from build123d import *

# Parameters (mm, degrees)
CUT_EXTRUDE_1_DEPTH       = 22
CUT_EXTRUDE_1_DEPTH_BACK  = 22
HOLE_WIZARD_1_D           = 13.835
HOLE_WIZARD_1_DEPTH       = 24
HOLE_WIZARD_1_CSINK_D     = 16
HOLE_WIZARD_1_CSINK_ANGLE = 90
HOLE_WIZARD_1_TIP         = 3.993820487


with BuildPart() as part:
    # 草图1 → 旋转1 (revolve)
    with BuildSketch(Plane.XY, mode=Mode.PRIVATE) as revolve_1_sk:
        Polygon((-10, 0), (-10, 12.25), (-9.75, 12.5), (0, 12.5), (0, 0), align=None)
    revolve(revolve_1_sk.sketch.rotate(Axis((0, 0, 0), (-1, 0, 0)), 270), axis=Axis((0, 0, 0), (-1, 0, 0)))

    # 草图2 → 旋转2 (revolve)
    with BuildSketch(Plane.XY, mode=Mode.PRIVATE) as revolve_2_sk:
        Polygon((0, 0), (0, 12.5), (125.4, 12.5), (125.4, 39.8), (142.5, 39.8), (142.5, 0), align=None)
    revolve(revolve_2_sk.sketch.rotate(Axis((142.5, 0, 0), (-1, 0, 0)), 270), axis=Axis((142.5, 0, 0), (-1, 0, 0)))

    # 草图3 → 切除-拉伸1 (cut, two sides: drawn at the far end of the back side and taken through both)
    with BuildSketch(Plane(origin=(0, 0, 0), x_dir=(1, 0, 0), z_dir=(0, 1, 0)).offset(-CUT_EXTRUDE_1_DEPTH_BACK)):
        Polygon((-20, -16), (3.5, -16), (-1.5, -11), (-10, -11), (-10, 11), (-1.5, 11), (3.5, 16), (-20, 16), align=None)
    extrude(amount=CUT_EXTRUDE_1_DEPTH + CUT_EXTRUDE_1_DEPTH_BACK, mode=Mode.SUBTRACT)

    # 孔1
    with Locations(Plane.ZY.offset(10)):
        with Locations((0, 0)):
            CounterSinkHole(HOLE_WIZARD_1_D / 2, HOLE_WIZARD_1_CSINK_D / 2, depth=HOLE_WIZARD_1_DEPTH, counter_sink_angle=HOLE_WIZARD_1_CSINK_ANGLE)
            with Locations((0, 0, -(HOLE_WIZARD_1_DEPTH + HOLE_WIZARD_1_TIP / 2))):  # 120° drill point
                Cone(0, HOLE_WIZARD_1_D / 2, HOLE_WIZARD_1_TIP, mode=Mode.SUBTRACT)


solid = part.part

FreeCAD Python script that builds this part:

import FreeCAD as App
import Part
import Sketcher

V = App.Vector
Q = App.Units.Quantity


def add_polygon(sketch, points):
    """Adds a closed chain of lines whose ends are joined by coincident constraints."""
    first, n = sketch.GeometryCount, len(points)
    for a, b in zip(points, points[1:] + points[:1]):
        sketch.addGeometry(Part.LineSegment(App.Vector(*a, 0), App.Vector(*b, 0)), False)
    for i in range(n):
        sketch.addConstraint(Sketcher.Constraint("Coincident", first + i, 2, first + (i + 1) % n, 1))

doc = App.newDocument("Part")
body = doc.addObject("PartDesign::Body", "Body")

# Sketch on XY plane
sketch1 = doc.addObject("Sketcher::SketchObject", "Sketch")
body.addObject(sketch1)
sketch1.AttachmentSupport = (doc.XY_Plane, [""])
sketch1.MapMode = "FlatFace"
add_polygon(sketch1, [(-10, 12.25), (-10, 0), (0, 0), (0, 12.5), (-9.75, 12.5)])  # lines 0-4
sketch1.addConstraint(Sketcher.Constraint("Vertical", 0))
sketch1.addConstraint(Sketcher.Constraint("Horizontal", 1))
sketch1.addConstraint(Sketcher.Constraint("Vertical", 2))
sketch1.addConstraint(Sketcher.Constraint("Horizontal", 3))
sketch1.addConstraint(Sketcher.Constraint("Coincident", 1, 2, -1, 1))
sketch1.addConstraint(Sketcher.Constraint("DistanceX", 1, 1, 1, 2, 10.0))
sketch1.addConstraint(Sketcher.Constraint("Angle", 4, Q("-135 deg")))
sketch1.addConstraint(Sketcher.Constraint("DistanceY", 2, 1, 2, 2, 12.5))
sketch1.addConstraint(Sketcher.Constraint("DistanceX", 3, 2, 3, 1, 9.75))
revolution = doc.addObject("PartDesign::Revolution", "Revolution")
body.addObject(revolution)
revolution.Profile = sketch1
revolution.ReferenceAxis = (sketch1, ["H_Axis"])
revolution.Angle = 360

# Sketch on XY plane
sketch2 = doc.addObject("Sketcher::SketchObject", "Sketch001")
body.addObject(sketch2)
sketch2.AttachmentSupport = (doc.XY_Plane, [""])
sketch2.MapMode = "FlatFace"
add_polygon(sketch2, [(0, 12), (0, 0), (142, 0), (142, 40), (125, 40), (125, 12)])  # lines 0-5
sketch2.addConstraint(Sketcher.Constraint("Vertical", 0))
sketch2.addConstraint(Sketcher.Constraint("Horizontal", 1))
sketch2.addConstraint(Sketcher.Constraint("Vertical", 2))
sketch2.addConstraint(Sketcher.Constraint("Horizontal", 3))
sketch2.addConstraint(Sketcher.Constraint("Vertical", 4))
sketch2.addConstraint(Sketcher.Constraint("Horizontal", 5))
sketch2.addConstraint(Sketcher.Constraint("Coincident", 0, 2, -1, 1))
sketch2.addConstraint(Sketcher.Constraint("DistanceX", 1, 1, 1, 2, 142.5))
sketch2.addConstraint(Sketcher.Constraint("DistanceX", 3, 2, 3, 1, 17.1))
sketch2.addConstraint(Sketcher.Constraint("DistanceY", 0, 2, 0, 1, 12.5))
sketch2.addConstraint(Sketcher.Constraint("DistanceY", 2, 1, 2, 2, 39.8))
revolution2 = doc.addObject("PartDesign::Revolution", "Revolution001")
body.addObject(revolution2)
revolution2.Profile = sketch2
revolution2.ReferenceAxis = (sketch2, ["H_Axis"])
revolution2.Angle = 360

# Sketch on XZ plane
sketch3 = doc.addObject("Sketcher::SketchObject", "Sketch002")
body.addObject(sketch3)
sketch3.AttachmentSupport = (doc.XZ_Plane, [""])
sketch3.MapMode = "FlatFace"
add_polygon(sketch3, [(-20, 16), (4, 16), (-2, 11), (-10, 11), (-10, -11), (-2, -11), (4, -16), (-20, -16)])  # lines 0-7
sketch3.addConstraint(Sketcher.Constraint("Horizontal", 0))
sketch3.addConstraint(Sketcher.Constraint("Horizontal", 2))
sketch3.addConstraint(Sketcher.Constraint("Vertical", 3))
sketch3.addConstraint(Sketcher.Constraint("Horizontal", 4))
sketch3.addConstraint(Sketcher.Constraint("Horizontal", 6))
sketch3.addConstraint(Sketcher.Constraint("Vertical", 7))
sketch3.addConstraint(Sketcher.Constraint("Symmetric", 1, 2, 4, 2, -1))
sketch3.addConstraint(Sketcher.Constraint("Symmetric", 0, 2, 5, 2, -1))
sketch3.addConstraint(Sketcher.Constraint("Perpendicular", 1, 5))
sketch3.addConstraint(Sketcher.Constraint("DistanceY", 3, 2, 3, 1, 22.0))
sketch3.addConstraint(Sketcher.Constraint("DistanceY", 7, 1, 7, 2, 32.0))
sketch3.addConstraint(Sketcher.Constraint("DistanceX", 0, 1, 0, 2, 23.5))
sketch3.addConstraint(Sketcher.Constraint("DistanceX", 2, 2, 2, 1, 8.5))
sketch3.addConstraint(Sketcher.Constraint("DistanceX", 2, 2, -1, 1, 10.0))
pocket1 = doc.addObject("PartDesign::Pocket", "Pocket")
body.addObject(pocket1)
pocket1.Profile = sketch3
pocket1.Type = "ThroughAll"
pocket1.Midplane = True

# Sketch on YZ plane
sketch4 = doc.addObject("Sketcher::SketchObject", "Sketch003")
body.addObject(sketch4)
sketch4.AttachmentSupport = (doc.YZ_Plane, [""])
sketch4.MapMode = "FlatFace"
sketch4.AttachmentOffset = App.Placement(V(0, 0, -10), App.Rotation())
sketch4.addGeometry(Part.Circle(V(0, 0, 0), V(0, 0, 1), 7), False)
sketch4.addConstraint(Sketcher.Constraint("Coincident", 0, 3, -1, 1))
sketch4.addConstraint(Sketcher.Constraint("Diameter", 0, 13.835))
doc.recompute()
hole = doc.addObject("PartDesign::Hole", "Hole")
body.addObject(hole)
hole.Profile = sketch4
hole.ThreadType = "None"
hole.Diameter = 13.835
hole.DepthType = "Dimension"
hole.Depth = 24
hole.DrillPoint = "Angled"
hole.DrillPointAngle = 120
hole.HoleCutType = "Countersink"
hole.HoleCutDiameter = 16
hole.HoleCutCountersinkAngle = 90
hole.Reversed = True

doc.recompute()
